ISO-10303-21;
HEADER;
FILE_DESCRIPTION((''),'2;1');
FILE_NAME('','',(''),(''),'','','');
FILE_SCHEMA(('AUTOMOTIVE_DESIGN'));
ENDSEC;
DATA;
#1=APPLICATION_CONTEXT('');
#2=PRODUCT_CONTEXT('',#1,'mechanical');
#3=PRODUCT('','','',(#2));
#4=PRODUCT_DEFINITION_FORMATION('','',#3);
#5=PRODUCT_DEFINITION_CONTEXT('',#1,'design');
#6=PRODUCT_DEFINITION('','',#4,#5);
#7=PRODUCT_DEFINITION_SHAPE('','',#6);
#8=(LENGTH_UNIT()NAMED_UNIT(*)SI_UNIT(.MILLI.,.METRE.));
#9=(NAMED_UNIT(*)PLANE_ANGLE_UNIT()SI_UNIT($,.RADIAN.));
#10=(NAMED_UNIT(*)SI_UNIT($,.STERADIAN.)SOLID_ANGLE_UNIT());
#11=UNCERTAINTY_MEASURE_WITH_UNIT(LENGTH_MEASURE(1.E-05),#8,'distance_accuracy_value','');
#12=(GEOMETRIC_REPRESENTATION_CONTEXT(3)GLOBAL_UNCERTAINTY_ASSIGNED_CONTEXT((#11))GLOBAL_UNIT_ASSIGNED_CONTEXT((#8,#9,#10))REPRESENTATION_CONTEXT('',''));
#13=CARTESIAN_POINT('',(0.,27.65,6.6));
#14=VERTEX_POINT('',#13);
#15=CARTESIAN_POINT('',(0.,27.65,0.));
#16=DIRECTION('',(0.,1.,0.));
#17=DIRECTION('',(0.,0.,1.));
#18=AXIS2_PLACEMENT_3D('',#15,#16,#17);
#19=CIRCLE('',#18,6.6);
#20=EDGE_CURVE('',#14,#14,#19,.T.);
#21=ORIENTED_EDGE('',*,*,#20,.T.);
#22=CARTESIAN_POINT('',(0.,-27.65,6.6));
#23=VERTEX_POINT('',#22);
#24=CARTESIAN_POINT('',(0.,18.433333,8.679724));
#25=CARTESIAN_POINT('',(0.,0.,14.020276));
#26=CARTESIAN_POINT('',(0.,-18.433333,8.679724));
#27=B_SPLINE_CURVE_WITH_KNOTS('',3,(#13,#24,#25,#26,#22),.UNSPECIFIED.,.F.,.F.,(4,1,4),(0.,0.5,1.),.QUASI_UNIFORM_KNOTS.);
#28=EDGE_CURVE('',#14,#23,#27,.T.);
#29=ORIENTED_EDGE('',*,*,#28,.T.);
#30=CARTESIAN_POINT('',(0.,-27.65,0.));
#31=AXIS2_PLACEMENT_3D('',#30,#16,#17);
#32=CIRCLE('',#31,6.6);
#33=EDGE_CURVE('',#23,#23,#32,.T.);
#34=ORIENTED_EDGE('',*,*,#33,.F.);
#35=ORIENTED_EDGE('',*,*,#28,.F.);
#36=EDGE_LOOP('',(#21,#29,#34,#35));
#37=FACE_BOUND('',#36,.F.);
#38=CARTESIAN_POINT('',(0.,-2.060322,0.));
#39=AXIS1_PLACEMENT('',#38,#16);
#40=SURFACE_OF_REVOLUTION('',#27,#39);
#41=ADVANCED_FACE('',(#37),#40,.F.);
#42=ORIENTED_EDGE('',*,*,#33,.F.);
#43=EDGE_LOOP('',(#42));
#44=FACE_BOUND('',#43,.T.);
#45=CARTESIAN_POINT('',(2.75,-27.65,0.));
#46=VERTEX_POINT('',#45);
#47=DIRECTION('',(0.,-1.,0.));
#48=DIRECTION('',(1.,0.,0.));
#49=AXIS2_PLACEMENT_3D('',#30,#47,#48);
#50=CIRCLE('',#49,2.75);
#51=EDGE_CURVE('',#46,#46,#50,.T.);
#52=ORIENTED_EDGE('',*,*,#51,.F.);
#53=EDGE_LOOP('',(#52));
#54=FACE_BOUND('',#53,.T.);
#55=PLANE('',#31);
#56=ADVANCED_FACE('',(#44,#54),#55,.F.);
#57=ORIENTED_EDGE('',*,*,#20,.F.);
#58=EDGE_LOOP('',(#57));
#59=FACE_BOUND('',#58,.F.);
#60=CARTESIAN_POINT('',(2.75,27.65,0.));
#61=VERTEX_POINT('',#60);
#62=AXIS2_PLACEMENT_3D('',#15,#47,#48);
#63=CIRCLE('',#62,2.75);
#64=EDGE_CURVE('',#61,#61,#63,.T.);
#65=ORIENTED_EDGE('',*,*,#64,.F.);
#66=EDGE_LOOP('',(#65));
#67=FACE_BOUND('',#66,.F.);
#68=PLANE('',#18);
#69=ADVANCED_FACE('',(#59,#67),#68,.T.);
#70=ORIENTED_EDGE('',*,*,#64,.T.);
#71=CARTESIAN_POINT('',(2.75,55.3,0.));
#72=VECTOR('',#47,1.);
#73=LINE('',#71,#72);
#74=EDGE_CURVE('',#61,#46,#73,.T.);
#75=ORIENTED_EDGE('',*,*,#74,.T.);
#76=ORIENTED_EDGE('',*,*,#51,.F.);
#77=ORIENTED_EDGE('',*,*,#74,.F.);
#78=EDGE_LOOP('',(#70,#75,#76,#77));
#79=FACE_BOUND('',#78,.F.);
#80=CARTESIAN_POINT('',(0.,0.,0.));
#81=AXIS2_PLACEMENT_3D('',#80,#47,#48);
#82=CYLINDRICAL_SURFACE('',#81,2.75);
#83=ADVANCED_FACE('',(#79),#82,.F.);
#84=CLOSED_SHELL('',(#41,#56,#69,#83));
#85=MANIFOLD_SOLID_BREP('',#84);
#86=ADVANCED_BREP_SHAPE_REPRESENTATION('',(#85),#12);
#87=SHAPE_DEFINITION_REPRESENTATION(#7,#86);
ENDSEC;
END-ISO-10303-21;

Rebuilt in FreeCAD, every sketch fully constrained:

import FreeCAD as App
import Part
import Sketcher
Q = App.Units.Quantity

doc = App.newDocument("Part")
params = doc.addObject("Spreadsheet::Sheet", "Params")
for row, (alias, value) in enumerate([
    ("revolution_angle", "360 deg"),
    ("sketch2_diameter", "5.5 mm"),
    ("pocket1_length", "110.6 mm"),
], start=1):
    params.set(f"A{row}", alias)
    params.set(f"B{row}", "=" + value)
    params.setAlias(f"B{row}", alias)

body = doc.addObject("PartDesign::Body", "Body")

# Sketch on YZ plane
sketch1 = body.newObject("Sketcher::SketchObject", "Sketch")
sketch1.AttachmentSupport = (doc.getObject("YZ_Plane"), [""])
sketch1.MapMode = "FlatFace"
sketch1.addGeometry(Part.BSplineCurve([App.Vector(27.65, 6.6, 0), App.Vector(18.433333, 8.679724, 0), App.Vector(0, 14.020276, 0), App.Vector(-18.433333, 8.679724, 0), App.Vector(-27.65, 6.6, 0)], [4, 1, 4], [0, 0.5, 1], False, 3, [1, 1, 1, 1, 1], False), False)
sketch1.addGeometry(Part.LineSegment(App.Vector(-27.65, 6.6, 0), App.Vector(-27.65, 0, 0)), False)
sketch1.addGeometry(Part.LineSegment(App.Vector(-27.65, 0, 0), App.Vector(27.65, 0, 0)), False)
sketch1.addGeometry(Part.LineSegment(App.Vector(27.65, 0, 0), App.Vector(27.65, 6.6, 0)), False)
sketch1.addConstraint(Sketcher.Constraint("Block", 0))
sketch1.addConstraint(Sketcher.Constraint("Coincident", 0, 2, 1, 1))
sketch1.addConstraint(Sketcher.Constraint("Coincident", 1, 2, 2, 1))
sketch1.addConstraint(Sketcher.Constraint("Coincident", 2, 2, 3, 1))
sketch1.addConstraint(Sketcher.Constraint("Coincident", 3, 2, 0, 1))
sketch1.addConstraint(Sketcher.Constraint("Vertical", 1))
sketch1.addConstraint(Sketcher.Constraint("Horizontal", 2))
sketch1.addConstraint(Sketcher.Constraint("Vertical", 3))
sketch1.addConstraint(Sketcher.Constraint("PointOnObject", 1, 2, -1))
revolution = body.newObject("PartDesign::Revolution", "Revolution")
revolution.Profile = sketch1
revolution.ReferenceAxis = (sketch1, ["H_Axis"])
revolution.setExpression("Angle", "Params.revolution_angle")

# Sketch on XZ plane
sketch2 = body.newObject("Sketcher::SketchObject", "Sketch001")
sketch2.AttachmentSupport = (doc.getObject("XZ_Plane"), [""])
sketch2.MapMode = "FlatFace"
sketch2.addGeometry(Part.Circle(App.Vector(0, 0, 0), App.Vector(0, 0, 1), 2.8), False)
sketch2.addConstraint(Sketcher.Constraint("Coincident", 0, 3, -1, 1))
sketch2.addConstraint(Sketcher.Constraint("Diameter", 0, Q("5.5 mm")))
sketch2.setExpression("Constraints[1]", "Params.sketch2_diameter")
pocket1 = body.newObject("PartDesign::Pocket", "Pocket")
pocket1.Profile = sketch2
pocket1.setExpression("Length", "Params.pocket1_length")
pocket1.Midplane = True

doc.recompute()
